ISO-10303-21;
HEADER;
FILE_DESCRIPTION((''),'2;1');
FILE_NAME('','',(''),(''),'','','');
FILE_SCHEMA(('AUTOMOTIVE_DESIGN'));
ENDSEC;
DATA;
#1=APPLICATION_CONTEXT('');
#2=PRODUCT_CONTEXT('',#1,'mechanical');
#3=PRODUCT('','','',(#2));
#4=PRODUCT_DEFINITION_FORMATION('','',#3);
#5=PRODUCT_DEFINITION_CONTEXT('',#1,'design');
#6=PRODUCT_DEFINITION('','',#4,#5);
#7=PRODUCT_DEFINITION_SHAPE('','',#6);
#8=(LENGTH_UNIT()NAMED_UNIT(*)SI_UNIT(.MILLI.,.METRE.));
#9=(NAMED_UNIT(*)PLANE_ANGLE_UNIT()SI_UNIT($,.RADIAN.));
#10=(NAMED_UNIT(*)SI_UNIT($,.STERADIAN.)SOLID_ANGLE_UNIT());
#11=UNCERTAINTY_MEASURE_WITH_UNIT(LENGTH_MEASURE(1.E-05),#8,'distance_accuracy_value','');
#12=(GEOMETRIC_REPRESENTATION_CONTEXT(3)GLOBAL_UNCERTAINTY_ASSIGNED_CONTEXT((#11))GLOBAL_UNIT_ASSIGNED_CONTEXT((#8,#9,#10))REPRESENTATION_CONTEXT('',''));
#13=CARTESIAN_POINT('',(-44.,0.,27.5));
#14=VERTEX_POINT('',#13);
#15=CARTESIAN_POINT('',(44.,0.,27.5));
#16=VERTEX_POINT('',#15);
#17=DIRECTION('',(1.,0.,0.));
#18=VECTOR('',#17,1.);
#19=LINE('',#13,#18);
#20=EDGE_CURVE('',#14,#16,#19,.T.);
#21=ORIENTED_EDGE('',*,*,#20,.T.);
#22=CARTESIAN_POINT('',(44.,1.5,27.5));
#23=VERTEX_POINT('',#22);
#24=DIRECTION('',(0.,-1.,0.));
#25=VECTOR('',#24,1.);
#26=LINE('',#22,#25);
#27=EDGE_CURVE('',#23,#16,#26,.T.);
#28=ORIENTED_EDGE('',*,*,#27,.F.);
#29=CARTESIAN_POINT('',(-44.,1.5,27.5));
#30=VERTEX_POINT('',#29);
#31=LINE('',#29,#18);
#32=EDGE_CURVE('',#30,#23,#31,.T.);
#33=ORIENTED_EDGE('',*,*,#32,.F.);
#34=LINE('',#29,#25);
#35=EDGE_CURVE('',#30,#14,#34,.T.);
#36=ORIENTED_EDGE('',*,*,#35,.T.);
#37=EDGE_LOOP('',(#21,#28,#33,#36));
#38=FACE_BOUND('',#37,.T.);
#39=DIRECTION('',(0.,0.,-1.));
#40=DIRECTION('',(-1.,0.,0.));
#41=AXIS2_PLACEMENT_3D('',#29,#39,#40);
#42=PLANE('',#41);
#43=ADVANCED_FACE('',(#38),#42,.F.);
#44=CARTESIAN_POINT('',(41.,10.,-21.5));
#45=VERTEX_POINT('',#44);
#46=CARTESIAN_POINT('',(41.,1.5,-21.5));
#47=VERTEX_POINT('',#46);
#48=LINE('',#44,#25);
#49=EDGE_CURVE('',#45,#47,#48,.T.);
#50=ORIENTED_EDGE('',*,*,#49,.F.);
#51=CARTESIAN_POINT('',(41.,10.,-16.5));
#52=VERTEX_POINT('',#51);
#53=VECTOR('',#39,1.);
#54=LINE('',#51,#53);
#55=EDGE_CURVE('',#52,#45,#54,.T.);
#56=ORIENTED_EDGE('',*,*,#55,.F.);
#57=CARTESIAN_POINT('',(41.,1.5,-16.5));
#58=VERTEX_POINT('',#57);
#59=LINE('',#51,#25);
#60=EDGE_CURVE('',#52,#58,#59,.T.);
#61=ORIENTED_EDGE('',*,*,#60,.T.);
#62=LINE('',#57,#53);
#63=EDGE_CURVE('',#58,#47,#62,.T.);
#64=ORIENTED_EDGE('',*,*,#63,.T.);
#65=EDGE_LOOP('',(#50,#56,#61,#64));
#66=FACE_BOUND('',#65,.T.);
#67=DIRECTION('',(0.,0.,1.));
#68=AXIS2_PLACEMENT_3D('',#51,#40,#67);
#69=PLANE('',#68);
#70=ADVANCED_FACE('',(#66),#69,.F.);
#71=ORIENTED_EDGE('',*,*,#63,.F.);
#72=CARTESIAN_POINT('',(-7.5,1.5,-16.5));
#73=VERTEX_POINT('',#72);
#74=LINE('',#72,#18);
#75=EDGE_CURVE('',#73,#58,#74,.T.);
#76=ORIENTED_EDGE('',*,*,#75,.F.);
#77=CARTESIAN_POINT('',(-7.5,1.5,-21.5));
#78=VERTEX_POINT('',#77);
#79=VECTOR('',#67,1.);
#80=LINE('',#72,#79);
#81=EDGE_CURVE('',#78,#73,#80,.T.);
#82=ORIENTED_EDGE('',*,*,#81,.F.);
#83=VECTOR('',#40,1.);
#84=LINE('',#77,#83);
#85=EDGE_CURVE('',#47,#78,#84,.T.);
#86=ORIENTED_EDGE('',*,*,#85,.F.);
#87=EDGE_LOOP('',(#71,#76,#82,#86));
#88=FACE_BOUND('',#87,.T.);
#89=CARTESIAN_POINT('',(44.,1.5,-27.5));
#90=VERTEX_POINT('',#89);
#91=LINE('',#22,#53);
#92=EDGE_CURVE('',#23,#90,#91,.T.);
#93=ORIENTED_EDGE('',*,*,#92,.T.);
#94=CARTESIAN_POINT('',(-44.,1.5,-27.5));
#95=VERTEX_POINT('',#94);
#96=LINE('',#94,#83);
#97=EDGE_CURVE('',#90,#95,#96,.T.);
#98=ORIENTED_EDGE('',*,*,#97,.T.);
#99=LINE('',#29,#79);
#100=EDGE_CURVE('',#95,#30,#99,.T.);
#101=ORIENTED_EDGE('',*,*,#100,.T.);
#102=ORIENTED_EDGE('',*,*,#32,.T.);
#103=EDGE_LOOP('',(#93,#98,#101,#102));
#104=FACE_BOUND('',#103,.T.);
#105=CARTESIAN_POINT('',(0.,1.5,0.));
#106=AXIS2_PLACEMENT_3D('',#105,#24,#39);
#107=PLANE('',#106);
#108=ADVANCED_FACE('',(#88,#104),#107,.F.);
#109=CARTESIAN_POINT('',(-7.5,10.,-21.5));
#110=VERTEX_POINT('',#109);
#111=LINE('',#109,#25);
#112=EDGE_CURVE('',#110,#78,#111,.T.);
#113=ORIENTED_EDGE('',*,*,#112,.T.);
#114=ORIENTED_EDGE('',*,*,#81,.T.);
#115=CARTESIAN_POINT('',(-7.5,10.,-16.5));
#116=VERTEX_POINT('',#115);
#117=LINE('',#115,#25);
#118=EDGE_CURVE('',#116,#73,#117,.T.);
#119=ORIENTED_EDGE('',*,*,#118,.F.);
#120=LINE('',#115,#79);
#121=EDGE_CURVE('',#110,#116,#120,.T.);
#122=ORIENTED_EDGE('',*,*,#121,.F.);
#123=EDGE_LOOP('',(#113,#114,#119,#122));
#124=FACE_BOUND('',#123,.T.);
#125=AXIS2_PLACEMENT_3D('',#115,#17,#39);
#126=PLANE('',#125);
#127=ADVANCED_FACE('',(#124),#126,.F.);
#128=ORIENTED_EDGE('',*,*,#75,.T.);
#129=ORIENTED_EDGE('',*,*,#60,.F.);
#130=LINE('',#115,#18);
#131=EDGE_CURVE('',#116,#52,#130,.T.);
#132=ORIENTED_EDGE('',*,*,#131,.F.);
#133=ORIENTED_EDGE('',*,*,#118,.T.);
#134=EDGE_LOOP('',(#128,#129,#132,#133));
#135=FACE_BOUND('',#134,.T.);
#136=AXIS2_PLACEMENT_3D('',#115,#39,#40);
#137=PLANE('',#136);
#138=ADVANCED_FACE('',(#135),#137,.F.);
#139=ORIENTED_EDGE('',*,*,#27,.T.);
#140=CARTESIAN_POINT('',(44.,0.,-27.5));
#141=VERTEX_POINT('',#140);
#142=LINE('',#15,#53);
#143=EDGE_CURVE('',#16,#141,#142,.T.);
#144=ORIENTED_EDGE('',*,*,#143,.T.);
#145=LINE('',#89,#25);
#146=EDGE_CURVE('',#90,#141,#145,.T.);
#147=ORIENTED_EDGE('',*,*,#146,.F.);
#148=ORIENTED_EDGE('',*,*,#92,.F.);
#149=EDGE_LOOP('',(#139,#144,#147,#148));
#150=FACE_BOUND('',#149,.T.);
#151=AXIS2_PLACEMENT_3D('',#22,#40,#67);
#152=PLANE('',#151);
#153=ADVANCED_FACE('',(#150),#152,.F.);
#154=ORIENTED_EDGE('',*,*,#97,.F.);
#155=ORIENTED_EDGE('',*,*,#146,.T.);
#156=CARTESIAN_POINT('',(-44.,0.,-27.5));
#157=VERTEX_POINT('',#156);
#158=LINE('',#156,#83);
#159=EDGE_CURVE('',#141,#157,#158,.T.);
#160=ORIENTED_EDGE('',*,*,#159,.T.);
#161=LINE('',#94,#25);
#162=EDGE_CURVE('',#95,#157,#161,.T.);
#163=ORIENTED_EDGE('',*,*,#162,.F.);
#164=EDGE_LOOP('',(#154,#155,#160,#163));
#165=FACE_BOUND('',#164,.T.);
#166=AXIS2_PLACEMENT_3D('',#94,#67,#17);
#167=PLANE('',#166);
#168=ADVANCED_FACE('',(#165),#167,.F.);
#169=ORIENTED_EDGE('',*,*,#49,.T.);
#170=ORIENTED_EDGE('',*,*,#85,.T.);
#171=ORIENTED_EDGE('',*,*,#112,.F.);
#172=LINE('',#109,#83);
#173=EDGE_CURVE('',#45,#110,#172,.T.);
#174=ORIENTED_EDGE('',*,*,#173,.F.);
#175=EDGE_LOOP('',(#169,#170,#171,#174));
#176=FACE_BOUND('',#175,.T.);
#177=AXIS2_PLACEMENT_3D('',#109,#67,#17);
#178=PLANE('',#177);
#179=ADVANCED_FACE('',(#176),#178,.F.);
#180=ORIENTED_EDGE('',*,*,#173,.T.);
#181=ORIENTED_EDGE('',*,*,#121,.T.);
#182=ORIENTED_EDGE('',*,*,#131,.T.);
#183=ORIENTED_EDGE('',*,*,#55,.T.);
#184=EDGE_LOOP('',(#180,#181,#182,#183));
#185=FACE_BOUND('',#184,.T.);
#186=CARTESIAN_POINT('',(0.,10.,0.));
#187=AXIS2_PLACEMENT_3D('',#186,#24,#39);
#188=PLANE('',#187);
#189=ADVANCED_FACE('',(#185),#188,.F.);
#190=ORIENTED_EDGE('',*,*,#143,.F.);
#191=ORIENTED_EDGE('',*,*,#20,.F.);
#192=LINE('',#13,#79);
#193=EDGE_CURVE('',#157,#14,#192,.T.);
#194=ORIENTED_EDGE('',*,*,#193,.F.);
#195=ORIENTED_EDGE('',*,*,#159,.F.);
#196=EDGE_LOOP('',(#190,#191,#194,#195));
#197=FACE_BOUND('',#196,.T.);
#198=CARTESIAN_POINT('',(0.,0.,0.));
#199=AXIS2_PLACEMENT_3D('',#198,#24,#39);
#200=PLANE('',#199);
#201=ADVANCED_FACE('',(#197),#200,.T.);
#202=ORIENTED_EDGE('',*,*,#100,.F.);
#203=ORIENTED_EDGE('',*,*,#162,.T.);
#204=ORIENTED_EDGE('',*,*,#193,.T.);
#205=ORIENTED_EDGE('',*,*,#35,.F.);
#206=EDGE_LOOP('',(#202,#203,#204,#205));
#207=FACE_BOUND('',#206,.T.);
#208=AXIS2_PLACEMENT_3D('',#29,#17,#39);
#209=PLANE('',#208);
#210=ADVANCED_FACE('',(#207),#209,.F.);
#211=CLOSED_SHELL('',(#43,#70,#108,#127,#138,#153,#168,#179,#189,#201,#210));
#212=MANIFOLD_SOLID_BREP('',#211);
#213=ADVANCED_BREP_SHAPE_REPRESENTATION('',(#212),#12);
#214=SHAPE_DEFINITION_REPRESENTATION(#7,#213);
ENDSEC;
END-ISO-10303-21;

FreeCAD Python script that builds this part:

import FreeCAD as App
import Part
import Sketcher

doc = App.newDocument("Part")
params = doc.addObject("Spreadsheet::Sheet", "Params")
for row, (alias, value) in enumerate([
    ("sketch1_width", "88 mm"),
    ("sketch1_height", "55 mm"),
    ("pad1_length", "1.5 mm"),
    ("sketch2_height", "5 mm"),
    ("sketch2_width", "48.5 mm"),
    ("pad2_length", "8.5 mm"),
], start=1):
    params.set(f"A{row}", alias)
    params.set(f"B{row}", "=" + value)
    params.setAlias(f"B{row}", alias)

body = doc.addObject("PartDesign::Body", "Body")

# Sketch on XZ plane
sketch1 = body.newObject("Sketcher::SketchObject", "Sketch")
sketch1.AttachmentSupport = (doc.getObject("XZ_Plane"), [""])
sketch1.MapMode = "FlatFace"
sketch1.addGeometry([
    Part.LineSegment(App.Vector(-44, -28, 0), App.Vector(-44, 28, 0)),
    Part.LineSegment(App.Vector(-44, 28, 0), App.Vector(44, 28, 0)),
    Part.LineSegment(App.Vector(44, 28, 0), App.Vector(44, -28, 0)),
    Part.LineSegment(App.Vector(44, -28, 0), App.Vector(-44, -28, 0)),
], False)
sketch1.addConstraint([
    Sketcher.Constraint("Coincident", 0, 2, 1, 1),
    Sketcher.Constraint("Coincident", 1, 2, 2, 1),
    Sketcher.Constraint("Coincident", 2, 2, 3, 1),
    Sketcher.Constraint("Coincident", 3, 2, 0, 1),
    Sketcher.Constraint("Vertical", 0),
    Sketcher.Constraint("Horizontal", 1),
    Sketcher.Constraint("Vertical", 2),
    Sketcher.Constraint("Horizontal", 3),
    Sketcher.Constraint("Symmetric", 0, 2, 2, 2, -1, 1),
    Sketcher.Constraint("DistanceX", 1, 1, 1, 2, 88.0),
    Sketcher.Constraint("DistanceY", 0, 1, 0, 2, 55.0),
])
sketch1.setExpression("Constraints[9]", "Params.sketch1_width")
sketch1.setExpression("Constraints[10]", "Params.sketch1_height")
pad1 = body.newObject("PartDesign::Pad", "Pad")
pad1.Profile = sketch1
pad1.setExpression("Length", "Params.pad1_length")
pad1.Reversed = True

# Sketch on XZ plane
sketch2 = body.newObject("Sketcher::SketchObject", "Sketch001")
sketch2.AttachmentSupport = (doc.getObject("XZ_Plane"), [""])
sketch2.MapMode = "FlatFace"
sketch2.AttachmentOffset = App.Placement(App.Vector(0, 0, -1.5), App.Rotation())
sketch2.addGeometry([
    Part.LineSegment(App.Vector(-8, -22, 0), App.Vector(-8, -16, 0)),
    Part.LineSegment(App.Vector(-8, -16, 0), App.Vector(41, -16, 0)),
    Part.LineSegment(App.Vector(41, -16, 0), App.Vector(41, -22, 0)),
    Part.LineSegment(App.Vector(41, -22, 0), App.Vector(-8, -22, 0)),
], False)
sketch2.addConstraint([
    Sketcher.Constraint("Coincident", 0, 2, 1, 1),
    Sketcher.Constraint("Coincident", 1, 2, 2, 1),
    Sketcher.Constraint("Coincident", 2, 2, 3, 1),
    Sketcher.Constraint("Coincident", 3, 2, 0, 1),
    Sketcher.Constraint("Vertical", 0),
    Sketcher.Constraint("Horizontal", 1),
    Sketcher.Constraint("Vertical", 2),
    Sketcher.Constraint("Horizontal", 3),
    Sketcher.Constraint("DistanceY", 0, 1, 0, 2, 5.0),
    Sketcher.Constraint("DistanceX", 1, 1, 1, 2, 48.5),
    Sketcher.Constraint("DistanceX", -1, 1, 1, 2, 41.0),
    Sketcher.Constraint("DistanceY", 0, 2, -1, 1, 16.5),
])
sketch2.setExpression("Constraints[8]", "Params.sketch2_height")
sketch2.setExpression("Constraints[9]", "Params.sketch2_width")
pad2 = body.newObject("PartDesign::Pad", "Pad001")
pad2.Profile = sketch2
pad2.setExpression("Length", "Params.pad2_length")
pad2.Reversed = True

doc.recompute()
